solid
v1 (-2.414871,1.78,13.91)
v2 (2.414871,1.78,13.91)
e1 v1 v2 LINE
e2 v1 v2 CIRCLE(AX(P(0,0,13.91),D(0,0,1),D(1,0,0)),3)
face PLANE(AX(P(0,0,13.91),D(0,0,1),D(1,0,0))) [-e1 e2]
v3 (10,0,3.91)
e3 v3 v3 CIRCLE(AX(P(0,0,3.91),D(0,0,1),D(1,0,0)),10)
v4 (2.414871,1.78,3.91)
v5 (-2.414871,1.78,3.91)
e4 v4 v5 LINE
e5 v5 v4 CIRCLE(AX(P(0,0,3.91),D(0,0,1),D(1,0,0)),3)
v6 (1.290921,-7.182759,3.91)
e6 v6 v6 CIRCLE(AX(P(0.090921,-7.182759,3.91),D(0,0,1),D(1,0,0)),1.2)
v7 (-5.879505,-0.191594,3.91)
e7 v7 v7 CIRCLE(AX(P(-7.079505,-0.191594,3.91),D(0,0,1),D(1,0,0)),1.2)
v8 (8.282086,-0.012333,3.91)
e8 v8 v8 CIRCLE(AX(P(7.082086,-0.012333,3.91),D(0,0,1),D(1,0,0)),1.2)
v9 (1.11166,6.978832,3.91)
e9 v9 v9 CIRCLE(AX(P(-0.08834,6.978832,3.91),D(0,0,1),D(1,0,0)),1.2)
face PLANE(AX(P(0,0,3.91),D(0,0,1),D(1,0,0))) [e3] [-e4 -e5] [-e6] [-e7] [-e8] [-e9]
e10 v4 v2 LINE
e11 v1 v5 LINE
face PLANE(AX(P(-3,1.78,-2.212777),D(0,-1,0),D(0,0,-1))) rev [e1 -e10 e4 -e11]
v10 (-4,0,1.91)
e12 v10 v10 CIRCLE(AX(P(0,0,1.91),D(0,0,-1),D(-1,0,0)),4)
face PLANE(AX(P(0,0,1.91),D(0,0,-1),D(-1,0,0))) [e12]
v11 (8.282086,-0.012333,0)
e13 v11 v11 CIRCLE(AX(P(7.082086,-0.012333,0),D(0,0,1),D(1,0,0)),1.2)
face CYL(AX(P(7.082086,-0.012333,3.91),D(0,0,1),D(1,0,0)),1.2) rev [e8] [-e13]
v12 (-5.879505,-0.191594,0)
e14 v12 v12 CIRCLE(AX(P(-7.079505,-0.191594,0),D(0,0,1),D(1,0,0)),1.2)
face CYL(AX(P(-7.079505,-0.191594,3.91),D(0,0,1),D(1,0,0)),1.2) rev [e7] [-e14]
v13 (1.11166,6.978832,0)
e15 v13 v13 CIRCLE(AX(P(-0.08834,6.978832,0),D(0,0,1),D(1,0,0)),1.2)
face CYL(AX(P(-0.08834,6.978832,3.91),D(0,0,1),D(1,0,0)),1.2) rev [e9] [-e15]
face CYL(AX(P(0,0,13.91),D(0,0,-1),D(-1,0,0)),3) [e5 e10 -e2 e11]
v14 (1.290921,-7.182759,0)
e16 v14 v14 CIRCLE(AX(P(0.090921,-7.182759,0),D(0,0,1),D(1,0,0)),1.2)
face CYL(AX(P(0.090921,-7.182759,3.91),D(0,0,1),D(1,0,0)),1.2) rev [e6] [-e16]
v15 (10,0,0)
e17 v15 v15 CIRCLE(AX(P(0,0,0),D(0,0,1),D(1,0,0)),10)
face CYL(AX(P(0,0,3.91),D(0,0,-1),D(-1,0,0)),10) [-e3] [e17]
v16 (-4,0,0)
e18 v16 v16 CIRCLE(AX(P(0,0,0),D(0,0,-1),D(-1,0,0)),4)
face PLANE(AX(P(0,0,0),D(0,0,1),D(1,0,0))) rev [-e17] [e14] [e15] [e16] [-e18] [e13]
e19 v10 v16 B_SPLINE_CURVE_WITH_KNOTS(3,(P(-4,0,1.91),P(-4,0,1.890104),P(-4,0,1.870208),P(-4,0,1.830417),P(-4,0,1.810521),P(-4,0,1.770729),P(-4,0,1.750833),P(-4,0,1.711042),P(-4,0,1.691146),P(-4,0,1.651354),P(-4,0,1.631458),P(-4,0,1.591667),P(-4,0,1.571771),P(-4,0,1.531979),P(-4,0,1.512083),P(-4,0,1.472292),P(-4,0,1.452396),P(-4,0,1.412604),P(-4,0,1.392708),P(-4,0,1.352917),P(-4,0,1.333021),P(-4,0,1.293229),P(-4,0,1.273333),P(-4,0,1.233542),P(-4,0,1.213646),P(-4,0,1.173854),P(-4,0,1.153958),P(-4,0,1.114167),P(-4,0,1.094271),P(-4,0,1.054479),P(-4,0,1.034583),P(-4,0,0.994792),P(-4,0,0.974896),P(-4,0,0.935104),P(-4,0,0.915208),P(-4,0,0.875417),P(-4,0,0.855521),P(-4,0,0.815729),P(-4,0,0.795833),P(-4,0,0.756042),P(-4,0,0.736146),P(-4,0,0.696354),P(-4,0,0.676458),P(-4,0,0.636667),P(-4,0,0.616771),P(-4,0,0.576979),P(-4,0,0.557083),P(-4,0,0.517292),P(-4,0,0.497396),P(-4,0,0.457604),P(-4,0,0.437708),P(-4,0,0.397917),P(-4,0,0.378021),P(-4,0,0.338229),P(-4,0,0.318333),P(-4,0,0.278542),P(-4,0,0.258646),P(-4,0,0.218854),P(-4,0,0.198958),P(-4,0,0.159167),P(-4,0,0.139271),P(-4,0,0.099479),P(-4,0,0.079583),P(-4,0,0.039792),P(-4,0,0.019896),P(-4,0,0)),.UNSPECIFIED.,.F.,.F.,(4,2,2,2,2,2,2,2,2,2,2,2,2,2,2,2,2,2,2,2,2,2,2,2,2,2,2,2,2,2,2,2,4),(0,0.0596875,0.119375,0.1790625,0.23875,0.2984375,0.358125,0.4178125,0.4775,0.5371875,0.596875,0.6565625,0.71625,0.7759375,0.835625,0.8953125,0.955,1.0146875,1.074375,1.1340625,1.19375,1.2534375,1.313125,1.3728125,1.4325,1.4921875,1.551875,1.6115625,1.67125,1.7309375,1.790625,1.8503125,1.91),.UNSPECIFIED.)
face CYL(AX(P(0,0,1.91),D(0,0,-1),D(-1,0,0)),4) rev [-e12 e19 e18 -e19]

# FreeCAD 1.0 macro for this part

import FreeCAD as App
import Part
import Sketcher
Q = App.Units.Quantity


def add_polygon(sketch, points):
    """Adds a closed chain of lines whose ends are joined by coincident constraints."""
    first, n = sketch.GeometryCount, len(points)
    for a, b in zip(points, points[1:] + points[:1]):
        sketch.addGeometry(Part.LineSegment(App.Vector(*a, 0), App.Vector(*b, 0)), False)
    for i in range(n):
        sketch.addConstraint(Sketcher.Constraint("Coincident", first + i, 2, first + (i + 1) % n, 1))

doc = App.newDocument("Part")
body = doc.addObject("PartDesign::Body", "Body")

# Sketch on XY plane
sketch1 = doc.addObject("Sketcher::SketchObject", "Sketch")
body.addObject(sketch1)
sketch1.AttachmentSupport = (doc.XY_Plane, [""])
sketch1.MapMode = "FlatFace"
sketch1.addGeometry(Part.Circle(App.Vector(0, 0, 0), App.Vector(0, 0, 1), 10), False)
sketch1.addConstraint([
    Sketcher.Constraint("Coincident", 0, 3, -1, 1),
    Sketcher.Constraint("Diameter", 0, Q("20 mm")),
])
pad1 = doc.addObject("PartDesign::Pad", "Pad")
body.addObject(pad1)
pad1.Profile = sketch1
pad1.Length = 3.91

# Sketch on XY plane
sketch2 = doc.addObject("Sketcher::SketchObject", "Sketch001")
body.addObject(sketch2)
sketch2.AttachmentSupport = (doc.XY_Plane, [""])
sketch2.MapMode = "FlatFace"
sketch2.AttachmentOffset = App.Placement(App.Vector(0, 0, 3.91), App.Rotation())
sketch2.addGeometry(Part.Circle(App.Vector(-0.1, 7, 0), App.Vector(0, 0, 1), 1.2), False)
sketch2.addConstraint([
    Sketcher.Constraint("Diameter", 0, Q("2.4 mm")),
    Sketcher.Constraint("DistanceX", 0, 3, -1, 1, Q("0.08834 mm")),
    Sketcher.Constraint("DistanceY", -1, 1, 0, 3, Q("6.978832 mm")),
])
doc.recompute()
hole = doc.addObject("PartDesign::Hole", "Hole")
body.addObject(hole)
hole.Profile = sketch2
hole.ThreadType = "None"
hole.Diameter = 2.4
hole.DepthType = "ThroughAll"
doc.recompute()

datumline = doc.addObject("PartDesign::Line", "DatumLine")
body.addObject(datumline)
datumline.Placement = App.Placement(App.Vector(0.001291, -0.101963, 0), App.Rotation(App.Vector(0, 0, 1), App.Vector(0, 0, 1)))
polarpattern = doc.addObject("PartDesign::PolarPattern", "PolarPattern")
body.addObject(polarpattern)
polarpattern.Originals = [hole]
polarpattern.Axis = (datumline, [""])
polarpattern.Angle = 360
polarpattern.Occurrences = 4
body.Tip = polarpattern

# Sketch on XY plane
sketch3 = doc.addObject("Sketcher::SketchObject", "Sketch002")
body.addObject(sketch3)
sketch3.AttachmentSupport = (doc.XY_Plane, [""])
sketch3.MapMode = "FlatFace"
sketch3.AttachmentOffset = App.Placement(App.Vector(0, 0, 3.91), App.Rotation())
sketch3.addGeometry(Part.Circle(App.Vector(0, 0, 0), App.Vector(0, 0, 1), 3), False)
sketch3.addConstraint([
    Sketcher.Constraint("Coincident", 0, 3, -1, 1),
    Sketcher.Constraint("Diameter", 0, Q("6 mm")),
])
pad2 = doc.addObject("PartDesign::Pad", "Pad001")
body.addObject(pad2)
pad2.Profile = sketch3
pad2.Length = 10

# Sketch on XY plane
sketch4 = doc.addObject("Sketcher::SketchObject", "Sketch003")
body.addObject(sketch4)
sketch4.AttachmentSupport = (doc.XY_Plane, [""])
sketch4.MapMode = "FlatFace"
sketch4.AttachmentOffset = App.Placement(App.Vector(0, 0, 13.91), App.Rotation())
add_polygon(sketch4, [(-3, 3), (-3, 1.8), (3, 1.8), (3, 3)])  # lines 0-3
sketch4.addConstraint([
    Sketcher.Constraint("Vertical", 0),
    Sketcher.Constraint("Horizontal", 1),
    Sketcher.Constraint("Vertical", 2),
    Sketcher.Constraint("Horizontal", 3),
    Sketcher.Constraint("DistanceX", 1, 1, 1, 2, Q("6 mm")),
    Sketcher.Constraint("DistanceX", 0, 2, -1, 1, Q("3 mm")),
    Sketcher.Constraint("DistanceY", -1, 1, 2, 2, Q("3 mm")),
    Sketcher.Constraint("DistanceY", 0, 2, 0, 1, Q("1.22 mm")),
])
pocket1 = doc.addObject("PartDesign::Pocket", "Pocket")
body.addObject(pocket1)
pocket1.Profile = sketch4
pocket1.Length = 10

# Sketch on XY plane
sketch5 = doc.addObject("Sketcher::SketchObject", "Sketch004")
body.addObject(sketch5)
sketch5.AttachmentSupport = (doc.XY_Plane, [""])
sketch5.MapMode = "FlatFace"
sketch5.addGeometry(Part.Circle(App.Vector(0, 0, 0), App.Vector(0, 0, 1), 4), False)
sketch5.addConstraint([
    Sketcher.Constraint("Coincident", 0, 3, -1, 1),
    Sketcher.Constraint("Diameter", 0, Q("8 mm")),
])
pocket2 = doc.addObject("PartDesign::Pocket", "Pocket001")
body.addObject(pocket2)
pocket2.Profile = sketch5
pocket2.Length = 1.91
pocket2.Reversed = True

doc.recompute()
